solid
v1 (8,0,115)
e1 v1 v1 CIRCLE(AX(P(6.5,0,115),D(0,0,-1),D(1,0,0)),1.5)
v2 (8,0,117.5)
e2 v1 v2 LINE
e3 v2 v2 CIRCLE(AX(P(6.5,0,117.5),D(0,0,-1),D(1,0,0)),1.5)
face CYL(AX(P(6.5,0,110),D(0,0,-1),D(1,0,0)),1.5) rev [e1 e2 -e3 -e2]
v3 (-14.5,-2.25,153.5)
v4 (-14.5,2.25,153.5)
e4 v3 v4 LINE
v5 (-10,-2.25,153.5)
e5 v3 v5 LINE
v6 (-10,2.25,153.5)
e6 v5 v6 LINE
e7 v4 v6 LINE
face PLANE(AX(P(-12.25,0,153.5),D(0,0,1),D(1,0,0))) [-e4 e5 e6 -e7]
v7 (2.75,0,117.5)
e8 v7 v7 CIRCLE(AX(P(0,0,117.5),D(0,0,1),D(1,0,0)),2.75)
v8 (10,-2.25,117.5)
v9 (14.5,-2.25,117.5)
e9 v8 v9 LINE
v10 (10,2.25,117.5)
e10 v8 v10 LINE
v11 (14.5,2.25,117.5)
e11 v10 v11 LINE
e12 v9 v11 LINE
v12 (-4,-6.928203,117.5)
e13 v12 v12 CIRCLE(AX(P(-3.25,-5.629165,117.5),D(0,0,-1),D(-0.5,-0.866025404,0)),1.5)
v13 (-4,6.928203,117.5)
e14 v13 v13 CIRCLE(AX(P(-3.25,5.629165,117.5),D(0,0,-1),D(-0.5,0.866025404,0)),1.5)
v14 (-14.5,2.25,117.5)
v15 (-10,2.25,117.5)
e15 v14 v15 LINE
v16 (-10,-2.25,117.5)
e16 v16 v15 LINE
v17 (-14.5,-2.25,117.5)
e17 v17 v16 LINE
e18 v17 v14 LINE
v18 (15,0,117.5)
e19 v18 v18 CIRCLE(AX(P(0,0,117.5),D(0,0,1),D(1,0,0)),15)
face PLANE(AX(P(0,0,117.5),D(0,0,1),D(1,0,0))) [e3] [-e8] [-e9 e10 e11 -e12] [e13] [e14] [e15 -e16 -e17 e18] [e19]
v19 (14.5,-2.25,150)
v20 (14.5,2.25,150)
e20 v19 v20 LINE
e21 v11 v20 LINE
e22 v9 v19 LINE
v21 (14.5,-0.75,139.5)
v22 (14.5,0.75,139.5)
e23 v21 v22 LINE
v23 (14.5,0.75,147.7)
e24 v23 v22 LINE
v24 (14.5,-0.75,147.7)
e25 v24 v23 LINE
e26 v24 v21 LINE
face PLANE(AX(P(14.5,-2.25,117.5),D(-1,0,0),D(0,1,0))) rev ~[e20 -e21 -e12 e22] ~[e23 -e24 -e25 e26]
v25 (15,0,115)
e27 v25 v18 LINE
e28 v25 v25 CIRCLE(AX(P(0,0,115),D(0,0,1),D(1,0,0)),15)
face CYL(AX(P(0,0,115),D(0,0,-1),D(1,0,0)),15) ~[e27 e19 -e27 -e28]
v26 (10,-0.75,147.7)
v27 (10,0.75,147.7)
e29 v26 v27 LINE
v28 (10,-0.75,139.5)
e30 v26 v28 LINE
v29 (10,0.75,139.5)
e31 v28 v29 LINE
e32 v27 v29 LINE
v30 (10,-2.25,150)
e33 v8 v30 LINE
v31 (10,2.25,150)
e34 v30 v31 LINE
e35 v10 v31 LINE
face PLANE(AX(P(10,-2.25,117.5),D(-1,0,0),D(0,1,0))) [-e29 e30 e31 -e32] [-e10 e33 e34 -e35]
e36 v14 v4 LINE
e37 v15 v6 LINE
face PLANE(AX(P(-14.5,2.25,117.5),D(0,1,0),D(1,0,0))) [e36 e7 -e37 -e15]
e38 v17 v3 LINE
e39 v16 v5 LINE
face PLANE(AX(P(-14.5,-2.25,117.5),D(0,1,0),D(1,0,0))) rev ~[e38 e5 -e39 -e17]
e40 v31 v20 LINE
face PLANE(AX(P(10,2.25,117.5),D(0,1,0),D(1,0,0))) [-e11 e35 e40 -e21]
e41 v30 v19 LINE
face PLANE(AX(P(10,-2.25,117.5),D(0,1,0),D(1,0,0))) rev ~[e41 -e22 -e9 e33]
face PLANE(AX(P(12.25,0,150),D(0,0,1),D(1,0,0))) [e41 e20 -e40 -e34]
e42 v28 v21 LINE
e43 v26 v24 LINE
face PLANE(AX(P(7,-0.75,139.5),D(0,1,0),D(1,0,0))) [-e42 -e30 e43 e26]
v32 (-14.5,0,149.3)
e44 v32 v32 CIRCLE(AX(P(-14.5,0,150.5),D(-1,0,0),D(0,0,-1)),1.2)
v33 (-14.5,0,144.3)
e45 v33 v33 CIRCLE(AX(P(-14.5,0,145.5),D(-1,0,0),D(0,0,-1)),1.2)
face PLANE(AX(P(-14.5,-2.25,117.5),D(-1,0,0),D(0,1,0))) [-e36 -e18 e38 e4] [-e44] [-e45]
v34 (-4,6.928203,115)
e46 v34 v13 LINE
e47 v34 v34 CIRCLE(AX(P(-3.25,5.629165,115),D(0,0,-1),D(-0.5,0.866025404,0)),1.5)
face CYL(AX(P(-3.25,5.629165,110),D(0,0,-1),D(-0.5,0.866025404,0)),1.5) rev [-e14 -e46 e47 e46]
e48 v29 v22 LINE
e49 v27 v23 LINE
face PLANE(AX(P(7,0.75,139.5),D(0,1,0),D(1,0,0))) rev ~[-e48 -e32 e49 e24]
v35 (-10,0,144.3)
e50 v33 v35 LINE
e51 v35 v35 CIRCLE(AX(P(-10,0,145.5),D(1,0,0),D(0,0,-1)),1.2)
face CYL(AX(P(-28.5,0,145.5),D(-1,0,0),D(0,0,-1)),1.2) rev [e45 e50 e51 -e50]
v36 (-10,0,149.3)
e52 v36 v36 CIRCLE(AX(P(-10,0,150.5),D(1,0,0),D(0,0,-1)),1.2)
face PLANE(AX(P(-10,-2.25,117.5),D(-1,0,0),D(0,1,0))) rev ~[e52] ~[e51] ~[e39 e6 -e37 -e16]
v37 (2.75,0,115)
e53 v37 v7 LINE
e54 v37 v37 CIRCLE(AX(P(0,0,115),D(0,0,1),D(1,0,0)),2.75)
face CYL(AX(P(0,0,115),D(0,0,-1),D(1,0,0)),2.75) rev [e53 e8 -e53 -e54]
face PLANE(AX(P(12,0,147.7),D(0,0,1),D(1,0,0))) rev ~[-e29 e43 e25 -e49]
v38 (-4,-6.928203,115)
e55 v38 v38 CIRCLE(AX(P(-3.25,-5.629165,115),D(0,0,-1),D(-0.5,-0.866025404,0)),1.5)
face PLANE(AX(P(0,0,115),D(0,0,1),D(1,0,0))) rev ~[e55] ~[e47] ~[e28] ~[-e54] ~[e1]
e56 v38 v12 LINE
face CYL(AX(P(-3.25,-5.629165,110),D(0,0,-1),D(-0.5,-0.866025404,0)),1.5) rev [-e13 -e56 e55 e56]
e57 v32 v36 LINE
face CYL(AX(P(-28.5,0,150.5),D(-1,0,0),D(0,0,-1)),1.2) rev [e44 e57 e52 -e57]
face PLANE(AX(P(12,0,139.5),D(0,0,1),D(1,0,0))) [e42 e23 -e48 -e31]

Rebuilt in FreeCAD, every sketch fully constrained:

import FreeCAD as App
import Part
import Sketcher

V = App.Vector
Q = App.Units.Quantity


def add_polygon(sketch, points):
    """Adds a closed chain of lines whose ends are joined by coincident constraints."""
    first, n = sketch.GeometryCount, len(points)
    for a, b in zip(points, points[1:] + points[:1]):
        sketch.addGeometry(Part.LineSegment(App.Vector(*a, 0), App.Vector(*b, 0)), False)
    for i in range(n):
        sketch.addConstraint(Sketcher.Constraint("Coincident", first + i, 2, first + (i + 1) % n, 1))

doc = App.newDocument("Part")
body = doc.addObject("PartDesign::Body", "Body")

sketch1 = body.newObject("Sketcher::SketchObject", "Sketch")
sketch1.AttachmentSupport = (doc.getObject("XY_Plane"), [""])
sketch1.MapMode = "FlatFace"
sketch1.AttachmentOffset = App.Placement(V(0, 0, 110), App.Rotation())
sketch1.addGeometry(Part.Circle(V(6.5, 0, 0), V(0, 0, 1), 1.5), False)
sketch1.addConstraint(Sketcher.Constraint("PointOnObject", 0, 3, -1))
sketch1.addConstraint(Sketcher.Constraint("Diameter", 0, Q("3 mm")))
sketch1.addConstraint(Sketcher.Constraint("DistanceX", -1, 1, 0, 3, Q("6.5 mm")))
pad1 = body.newObject("PartDesign::Pad", "Pad")
pad1.Profile = sketch1
pad1.Length = 10
body2 = doc.addObject("PartDesign::Body", "Body001")
body2.AllowCompound = True
doc.recompute()

body2.BaseFeature = body
doc.recompute()

body3 = doc.addObject("PartDesign::Body", "Body002")
body3.BaseFeature = body
body3.Placement = App.Placement(V(0, 0, 0), App.Rotation(V(0, 0, 1), 120))
boolean = body2.newObject("PartDesign::Boolean", "Boolean")
boolean.Type = "Fuse"
boolean.addObjects([body3])
doc.recompute()

body.Placement = App.Placement(V(0, 0, 0), App.Rotation(V(0, 0, 1), 240))
boolean2 = body2.newObject("PartDesign::Boolean", "Boolean001")
boolean2.Type = "Fuse"
boolean2.addObjects([body])
body4 = doc.addObject("PartDesign::Body", "Body003")

sketch2 = body4.newObject("Sketcher::SketchObject", "Sketch001")
sketch2.AttachmentSupport = (doc.getObject("XY_Plane003"), [""])
sketch2.MapMode = "FlatFace"
sketch2.AttachmentOffset = App.Placement(V(0, 0, 115), App.Rotation())
sketch2.addGeometry(Part.Circle(V(0, 0, 0), V(0, 0, 1), 15), False)
sketch2.addGeometry(Part.Circle(V(0, 0, 0), V(0, 0, 1), 2.8), False)
sketch2.addConstraint(Sketcher.Constraint("Coincident", 0, 3, -1, 1))
sketch2.addConstraint(Sketcher.Constraint("Coincident", 1, 3, -1, 1))
sketch2.addConstraint(Sketcher.Constraint("Diameter", 0, Q("30 mm")))
sketch2.addConstraint(Sketcher.Constraint("Diameter", 1, Q("5.5 mm")))
pad2 = body4.newObject("PartDesign::Pad", "Pad001")
pad2.Profile = sketch2
pad2.Length = 2.5
body5 = doc.addObject("PartDesign::Body", "Body004")

sketch3 = body5.newObject("Sketcher::SketchObject", "Sketch002")
sketch3.AttachmentSupport = (doc.getObject("XY_Plane004"), [""])
sketch3.MapMode = "FlatFace"
sketch3.AttachmentOffset = App.Placement(V(0, 0, 139.5), App.Rotation())
add_polygon(sketch3, [(7, 0.8), (7, -0.8), (17, -0.8), (17, 0.8)])
sketch3.addConstraint(Sketcher.Constraint("Vertical", 0))
sketch3.addConstraint(Sketcher.Constraint("Horizontal", 1))
sketch3.addConstraint(Sketcher.Constraint("Vertical", 2))
sketch3.addConstraint(Sketcher.Constraint("Horizontal", 3))
sketch3.addConstraint(Sketcher.Constraint("DistanceX", 1, 1, 1, 2, Q("10 mm")))
sketch3.addConstraint(Sketcher.Constraint("DistanceY", 0, 2, 0, 1, Q("1.5 mm")))
sketch3.addConstraint(Sketcher.Constraint("DistanceX", -1, 1, 0, 2, Q("7 mm")))
sketch3.addConstraint(Sketcher.Constraint("DistanceY", 0, 2, -1, 1, Q("0.75 mm")))
pad3 = body5.newObject("PartDesign::Pad", "Pad002")
pad3.Profile = sketch3
pad3.Length = 8.2
body6 = doc.addObject("PartDesign::Body", "Body005")

sketch4 = body6.newObject("Sketcher::SketchObject", "Sketch003")
sketch4.AttachmentSupport = (doc.getObject("XY_Plane005"), [""])
sketch4.MapMode = "FlatFace"
sketch4.AttachmentOffset = App.Placement(V(0, 0, 117.5), App.Rotation())
add_polygon(sketch4, [(10, 2.2), (10, -2.2), (14.5, -2.2), (14.5, 2.2)])
sketch4.addConstraint(Sketcher.Constraint("Vertical", 0))
sketch4.addConstraint(Sketcher.Constraint("Horizontal", 1))
sketch4.addConstraint(Sketcher.Constraint("Vertical", 2))
sketch4.addConstraint(Sketcher.Constraint("Horizontal", 3))
sketch4.addConstraint(Sketcher.Constraint("Equal", 3, 0))
sketch4.addConstraint(Sketcher.Constraint("DistanceX", 1, 1, 1, 2, Q("4.5 mm")))
sketch4.addConstraint(Sketcher.Constraint("DistanceX", -1, 1, 0, 2, Q("10 mm")))
sketch4.addConstraint(Sketcher.Constraint("DistanceY", 0, 2, -1, 1, Q("2.25 mm")))
pad4 = body6.newObject("PartDesign::Pad", "Pad003")
pad4.Profile = sketch4
pad4.Length = 32.5
doc.recompute()

boolean3 = body6.newObject("PartDesign::Boolean", "Boolean002")
boolean3.Type = "Cut"
boolean3.addObjects([body5])
doc.recompute()

boolean4 = body6.newObject("PartDesign::Boolean", "Boolean003")
boolean4.Type = "Fuse"
boolean4.addObjects([body4])
doc.recompute()

boolean5 = body6.newObject("PartDesign::Boolean", "Boolean004")
boolean5.Type = "Cut"
boolean5.addObjects([body2])
body7 = doc.addObject("PartDesign::Body", "Body006")

sketch5 = body7.newObject("Sketcher::SketchObject", "Sketch004")
sketch5.AttachmentSupport = (doc.getObject("YZ_Plane006"), [""])
sketch5.MapMode = "FlatFace"
sketch5.AttachmentOffset = App.Placement(V(0, 0, -28.5), App.Rotation())
sketch5.addGeometry(Part.Circle(V(0, 150.5, 0), V(0, 0, 1), 1.2), False)
sketch5.addConstraint(Sketcher.Constraint("PointOnObject", 0, 3, -2))
sketch5.addConstraint(Sketcher.Constraint("Diameter", 0, Q("2.4 mm")))
sketch5.addConstraint(Sketcher.Constraint("DistanceY", -1, 1, 0, 3, Q("150.5 mm")))
pad5 = body7.newObject("PartDesign::Pad", "Pad004")
pad5.Profile = sketch5
pad5.Length = 18.5
body8 = doc.addObject("PartDesign::Body", "Body007")
body8.AllowCompound = True

sketch6 = body8.newObject("Sketcher::SketchObject", "Sketch005")
sketch6.AttachmentSupport = (doc.getObject("YZ_Plane007"), [""])
sketch6.MapMode = "FlatFace"
sketch6.AttachmentOffset = App.Placement(V(0, 0, -28.5), App.Rotation())
sketch6.addGeometry(Part.Circle(V(0, 145.5, 0), V(0, 0, 1), 1.2), False)
sketch6.addConstraint(Sketcher.Constraint("PointOnObject", 0, 3, -2))
sketch6.addConstraint(Sketcher.Constraint("Diameter", 0, Q("2.4 mm")))
sketch6.addConstraint(Sketcher.Constraint("DistanceY", -1, 1, 0, 3, Q("145.5 mm")))
pad6 = body8.newObject("PartDesign::Pad", "Pad005")
pad6.Profile = sketch6
pad6.Length = 18.5
doc.recompute()

boolean6 = body8.newObject("PartDesign::Boolean", "Boolean005")
boolean6.Type = "Fuse"
boolean6.addObjects([body7])
body9 = doc.addObject("PartDesign::Body", "Body008")

sketch7 = body9.newObject("Sketcher::SketchObject", "Sketch006")
sketch7.AttachmentSupport = (doc.getObject("XY_Plane008"), [""])
sketch7.MapMode = "FlatFace"
sketch7.AttachmentOffset = App.Placement(V(0, 0, 117.5), App.Rotation())
add_polygon(sketch7, [(-14.5, 2.2), (-14.5, -2.2), (-10, -2.2), (-10, 2.2)])
sketch7.addConstraint(Sketcher.Constraint("Vertical", 0))
sketch7.addConstraint(Sketcher.Constraint("Horizontal", 1))
sketch7.addConstraint(Sketcher.Constraint("Vertical", 2))
sketch7.addConstraint(Sketcher.Constraint("Horizontal", 3))
sketch7.addConstraint(Sketcher.Constraint("Equal", 3, 0))
sketch7.addConstraint(Sketcher.Constraint("DistanceX", 1, 1, 1, 2, Q("4.5 mm")))
sketch7.addConstraint(Sketcher.Constraint("DistanceX", 1, 2, -1, 1, Q("10 mm")))
sketch7.addConstraint(Sketcher.Constraint("DistanceY", 0, 2, -1, 1, Q("2.25 mm")))
pad7 = body9.newObject("PartDesign::Pad", "Pad006")
pad7.Profile = sketch7
pad7.Length = 36
doc.recompute()

boolean7 = body9.newObject("PartDesign::Boolean", "Boolean006")
boolean7.Type = "Cut"
boolean7.addObjects([body8])
doc.recompute()

boolean8 = body9.newObject("PartDesign::Boolean", "Boolean007")
boolean8.Type = "Fuse"
boolean8.addObjects([body6])

doc.recompute()
